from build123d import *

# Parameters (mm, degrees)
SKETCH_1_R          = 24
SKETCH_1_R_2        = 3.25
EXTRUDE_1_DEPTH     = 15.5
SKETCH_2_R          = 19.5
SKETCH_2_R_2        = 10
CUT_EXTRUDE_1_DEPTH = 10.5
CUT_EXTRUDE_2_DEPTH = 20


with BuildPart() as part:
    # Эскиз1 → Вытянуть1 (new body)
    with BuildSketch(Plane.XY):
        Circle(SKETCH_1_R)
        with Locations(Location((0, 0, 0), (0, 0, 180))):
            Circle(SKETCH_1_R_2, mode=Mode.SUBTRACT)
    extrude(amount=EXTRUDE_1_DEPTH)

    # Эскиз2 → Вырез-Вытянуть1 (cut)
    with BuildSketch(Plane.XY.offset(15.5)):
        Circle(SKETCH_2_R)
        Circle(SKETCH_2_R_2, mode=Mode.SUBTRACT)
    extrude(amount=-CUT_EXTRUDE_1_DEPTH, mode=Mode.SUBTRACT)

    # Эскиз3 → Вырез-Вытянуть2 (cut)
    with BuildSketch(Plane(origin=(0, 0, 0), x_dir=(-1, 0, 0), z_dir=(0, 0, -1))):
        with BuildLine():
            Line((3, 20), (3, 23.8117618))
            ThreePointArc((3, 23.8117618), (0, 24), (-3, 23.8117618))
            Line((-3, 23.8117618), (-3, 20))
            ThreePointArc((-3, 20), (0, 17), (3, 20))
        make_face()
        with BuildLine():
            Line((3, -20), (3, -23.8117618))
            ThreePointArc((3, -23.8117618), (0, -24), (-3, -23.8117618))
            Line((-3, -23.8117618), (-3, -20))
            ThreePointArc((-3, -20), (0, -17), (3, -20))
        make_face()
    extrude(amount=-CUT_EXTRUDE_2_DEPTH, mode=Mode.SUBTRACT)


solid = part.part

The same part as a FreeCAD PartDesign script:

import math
import FreeCAD as App
import Part
import Sketcher

doc = App.newDocument("Part")
body = doc.addObject("PartDesign::Body", "Body")

sketch1 = body.newObject("Sketcher::SketchObject", "Sketch")
sketch1.AttachmentSupport = (doc.getObject("XY_Plane"), [""])
sketch1.MapMode = "FlatFace"
sketch1.addGeometry([
    Part.Circle(App.Vector(0, 0, 0), App.Vector(0, 0, 1), 24),
    Part.Circle(App.Vector(0, 0, 0), App.Vector(0, 0, 1), 3.25),
], False)
sketch1.addConstraint([
    Sketcher.Constraint("Coincident", 0, 3, -1, 1),
    Sketcher.Constraint("Coincident", 1, 3, -1, 1),
    Sketcher.Constraint("Diameter", 0, 48.0),
    Sketcher.Constraint("Diameter", 1, 6.5),
])
pad1 = body.newObject("PartDesign::Pad", "Pad")
pad1.Profile = sketch1
pad1.Length = 15.5

sketch2 = body.newObject("Sketcher::SketchObject", "Sketch001")
sketch2.AttachmentSupport = (doc.getObject("XY_Plane"), [""])
sketch2.MapMode = "FlatFace"
sketch2.AttachmentOffset = App.Placement(App.Vector(0, 0, 15.5), App.Rotation())
sketch2.addGeometry([
    Part.Circle(App.Vector(0, 0, 0), App.Vector(0, 0, 1), 19.5),
    Part.Circle(App.Vector(0, 0, 0), App.Vector(0, 0, 1), 10),
], False)
sketch2.addConstraint([
    Sketcher.Constraint("Coincident", 0, 3, -1, 1),
    Sketcher.Constraint("Coincident", 1, 3, -1, 1),
    Sketcher.Constraint("Diameter", 0, 39.0),
    Sketcher.Constraint("Diameter", 1, 20.0),
])
pocket1 = body.newObject("PartDesign::Pocket", "Pocket")
pocket1.Profile = sketch2
pocket1.Length = 10.5

sketch3 = body.newObject("Sketcher::SketchObject", "Sketch002")
sketch3.AttachmentSupport = (doc.getObject("XY_Plane"), [""])
sketch3.MapMode = "FlatFace"
sketch3.addGeometry([
    Part.LineSegment(App.Vector(-3, 20, 0), App.Vector(-3, 23.811762, 0)),
    Part.ArcOfCircle(Part.Circle(App.Vector(0, 0, 0), App.Vector(0, 0, 1), 24), math.radians(82.819244), math.radians(97.180756)),
    Part.LineSegment(App.Vector(3, 23.811762, 0), App.Vector(3, 20, 0)),
    Part.ArcOfCircle(Part.Circle(App.Vector(0, 20, 0), App.Vector(0, 0, 1), 3), math.radians(180), math.radians(360)),
    Part.LineSegment(App.Vector(-3, -23.811762, 0), App.Vector(-3, -20, 0)),
    Part.ArcOfCircle(Part.Circle(App.Vector(0, -20, 0), App.Vector(0, 0, 1), 3), math.radians(0), math.radians(180)),
    Part.LineSegment(App.Vector(3, -20, 0), App.Vector(3, -23.811762, 0)),
    Part.ArcOfCircle(Part.Circle(App.Vector(0, 0, 0), App.Vector(0, 0, 1), 24), math.radians(-97.180756), math.radians(-82.819244)),
], False)
sketch3.addConstraint([
    Sketcher.Constraint("Coincident", 0, 2, 1, 2),
    Sketcher.Constraint("Coincident", 1, 1, 2, 1),
    Sketcher.Constraint("Tangent", 2, 2, 3, 2),
    Sketcher.Constraint("Tangent", 3, 1, 0, 1),
    Sketcher.Constraint("Tangent", 4, 2, 5, 2),
    Sketcher.Constraint("Tangent", 5, 1, 6, 1),
    Sketcher.Constraint("Coincident", 6, 2, 7, 2),
    Sketcher.Constraint("Coincident", 7, 1, 4, 1),
    Sketcher.Constraint("Vertical", 0),
    Sketcher.Constraint("Vertical", 2),
    Sketcher.Constraint("Vertical", 4),
    Sketcher.Constraint("Vertical", 6),
    Sketcher.Constraint("Coincident", 1, 3, -1, 1),
    Sketcher.Constraint("Coincident", 7, 3, -1, 1),
    Sketcher.Constraint("Equal", 3, 5),
    Sketcher.Constraint("Equal", 1, 7),
    Sketcher.Constraint("Symmetric", 3, 3, 5, 3, -1, 1),
    Sketcher.Constraint("PointOnObject", 3, 3, -2),
    Sketcher.Constraint("Radius", 1, 24.0),
    Sketcher.Constraint("Radius", 3, 3.0),
    Sketcher.Constraint("DistanceY", -1, 1, 3, 3, 20.0),
])
pocket2 = body.newObject("PartDesign::Pocket", "Pocket001")
pocket2.Profile = sketch3
pocket2.Length = 20
pocket2.Reversed = True

doc.recompute()
